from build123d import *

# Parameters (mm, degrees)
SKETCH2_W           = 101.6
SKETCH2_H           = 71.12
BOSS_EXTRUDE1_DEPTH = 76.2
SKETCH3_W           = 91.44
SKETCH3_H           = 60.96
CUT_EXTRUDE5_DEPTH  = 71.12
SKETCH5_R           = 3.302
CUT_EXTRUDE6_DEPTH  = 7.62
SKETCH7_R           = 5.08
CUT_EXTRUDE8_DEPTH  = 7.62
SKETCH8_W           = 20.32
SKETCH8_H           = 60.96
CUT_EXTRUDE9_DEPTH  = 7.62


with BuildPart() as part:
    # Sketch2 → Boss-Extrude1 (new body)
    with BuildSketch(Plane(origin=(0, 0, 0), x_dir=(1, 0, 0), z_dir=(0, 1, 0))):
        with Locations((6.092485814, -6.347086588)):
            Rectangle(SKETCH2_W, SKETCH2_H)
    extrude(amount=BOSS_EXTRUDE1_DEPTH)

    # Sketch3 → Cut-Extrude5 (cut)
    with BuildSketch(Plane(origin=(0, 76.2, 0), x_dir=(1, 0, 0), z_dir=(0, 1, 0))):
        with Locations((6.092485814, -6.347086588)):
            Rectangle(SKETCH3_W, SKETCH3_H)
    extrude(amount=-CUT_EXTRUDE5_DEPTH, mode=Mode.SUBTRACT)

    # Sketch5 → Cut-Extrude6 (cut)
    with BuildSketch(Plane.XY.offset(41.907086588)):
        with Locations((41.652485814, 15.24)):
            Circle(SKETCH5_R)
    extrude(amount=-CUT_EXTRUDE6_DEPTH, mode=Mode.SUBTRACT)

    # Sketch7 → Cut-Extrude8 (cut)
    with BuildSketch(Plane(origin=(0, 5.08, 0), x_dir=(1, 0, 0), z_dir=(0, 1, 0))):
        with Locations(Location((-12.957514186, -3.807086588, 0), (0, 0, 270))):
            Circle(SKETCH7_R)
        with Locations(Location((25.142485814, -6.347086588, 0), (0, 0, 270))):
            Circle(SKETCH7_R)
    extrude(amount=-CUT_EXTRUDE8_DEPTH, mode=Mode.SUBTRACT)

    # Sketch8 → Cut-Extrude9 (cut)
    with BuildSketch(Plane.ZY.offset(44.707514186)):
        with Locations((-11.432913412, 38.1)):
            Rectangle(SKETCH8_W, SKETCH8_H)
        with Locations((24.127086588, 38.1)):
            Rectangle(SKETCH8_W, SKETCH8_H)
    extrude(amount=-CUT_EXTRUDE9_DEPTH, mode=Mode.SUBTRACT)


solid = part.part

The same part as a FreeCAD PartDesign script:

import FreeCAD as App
import Part
import Sketcher
from FreeCAD import Vector
Q = App.Units.Quantity


def add_polygon(sketch, points):
    """Adds a closed chain of lines whose ends are joined by coincident constraints."""
    first, n = sketch.GeometryCount, len(points)
    for a, b in zip(points, points[1:] + points[:1]):
        sketch.addGeometry(Part.LineSegment(App.Vector(*a, 0), App.Vector(*b, 0)), False)
    for i in range(n):
        sketch.addConstraint(Sketcher.Constraint("Coincident", first + i, 2, first + (i + 1) % n, 1))

doc = App.newDocument("Part")
body = doc.addObject("PartDesign::Body", "Body")

# Sketch on XZ plane
sketch1 = body.newObject("Sketcher::SketchObject", "Sketch")
sketch1.AttachmentSupport = (doc.getObject("XZ_Plane"), [""])
sketch1.MapMode = "FlatFace"
add_polygon(sketch1, [(-44.707514, -29.212913), (-44.707514, 41.907087), (56.892486, 41.907087), (56.892486, -29.212913)])  # lines 0-3
sketch1.addConstraint([
    Sketcher.Constraint("Vertical", 0),
    Sketcher.Constraint("Horizontal", 1),
    Sketcher.Constraint("Vertical", 2),
    Sketcher.Constraint("Horizontal", 3),
    Sketcher.Constraint("DistanceX", 1, 1, 1, 2, Q("4 in")),
    Sketcher.Constraint("DistanceY", 0, 1, 0, 2, Q("2.8 in")),
    Sketcher.Constraint("DistanceX", 0, 2, -1, 1, Q("44.707514 mm")),
    Sketcher.Constraint("DistanceY", -1, 1, 0, 2, Q("41.907087 mm")),
])
pad1 = body.newObject("PartDesign::Pad", "Pad")
pad1.Profile = sketch1
pad1.Length = Q("3 in")
pad1.Reversed = True

# Sketch on XZ plane
sketch2 = body.newObject("Sketcher::SketchObject", "Sketch001")
sketch2.AttachmentSupport = (doc.getObject("XZ_Plane"), [""])
sketch2.MapMode = "FlatFace"
sketch2.AttachmentOffset = App.Placement(Vector(0, 0, -3 * 25.4), App.Rotation())
add_polygon(sketch2, [(-39.627514, -24.132913), (-39.627514, 36.827087), (51.812486, 36.827087), (51.812486, -24.132913)])  # lines 0-3
sketch2.addConstraint([
    Sketcher.Constraint("Vertical", 0),
    Sketcher.Constraint("Horizontal", 1),
    Sketcher.Constraint("Vertical", 2),
    Sketcher.Constraint("Horizontal", 3),
    Sketcher.Constraint("DistanceX", 1, 1, 1, 2, Q("3.6 in")),
    Sketcher.Constraint("DistanceY", 0, 1, 0, 2, Q("2.4 in")),
    Sketcher.Constraint("DistanceX", 0, 2, -1, 1, Q("39.627514 mm")),
    Sketcher.Constraint("DistanceY", -1, 1, 0, 2, Q("36.827087 mm")),
])
pocket1 = body.newObject("PartDesign::Pocket", "Pocket")
pocket1.Profile = sketch2
pocket1.Length = Q("2.8 in")
pocket1.Reversed = True

# Sketch on XY plane
sketch3 = body.newObject("Sketcher::SketchObject", "Sketch002")
sketch3.AttachmentSupport = (doc.getObject("XY_Plane"), [""])
sketch3.MapMode = "FlatFace"
sketch3.AttachmentOffset = App.Placement(Vector(0, 0, 41.907087), App.Rotation())
sketch3.addGeometry(Part.Circle(Vector(41.652486, 15.24, 0), Vector(0, 0, 1), 3.302), False)
sketch3.addConstraint([
    Sketcher.Constraint("Diameter", 0, Q("0.26 in")),
    Sketcher.Constraint("DistanceY", -1, 1, 0, 3, Q("0.6 in")),
    Sketcher.Constraint("DistanceX", -1, 1, 0, 3, Q("41.652486 mm")),
])
pocket2 = body.newObject("PartDesign::Pocket", "Pocket001")
pocket2.Profile = sketch3
pocket2.Length = Q("0.3 in")

# Sketch on XZ plane
sketch4 = body.newObject("Sketcher::SketchObject", "Sketch003")
sketch4.AttachmentSupport = (doc.getObject("XZ_Plane"), [""])
sketch4.MapMode = "FlatFace"
sketch4.AttachmentOffset = App.Placement(Vector(0, 0, -0.2 * 25.4), App.Rotation())
sketch4.addGeometry([
    Part.Circle(Vector(-12.957514, 3.807087, 0), Vector(0, 0, 1), 5.08),
    Part.Circle(Vector(25.142486, 6.347087, 0), Vector(0, 0, 1), 5.08),
], False)
sketch4.addConstraint([
    Sketcher.Constraint("Equal", 0, 1),
    Sketcher.Constraint("Diameter", 0, Q("0.4 in")),
    Sketcher.Constraint("DistanceX", 0, 3, 1, 3, Q("1.5 in")),
    Sketcher.Constraint("DistanceY", 0, 3, 1, 3, Q("0.1 in")),
    Sketcher.Constraint("DistanceX", 0, 3, -1, 1, Q("12.957514 mm")),
    Sketcher.Constraint("DistanceY", -1, 1, 0, 3, Q("3.807087 mm")),
])
pocket3 = body.newObject("PartDesign::Pocket", "Pocket002")
pocket3.Profile = sketch4
pocket3.Length = Q("0.3 in")
pocket3.Reversed = True

# Sketch on YZ plane
sketch5 = body.newObject("Sketcher::SketchObject", "Sketch004")
sketch5.AttachmentSupport = (doc.getObject("YZ_Plane"), [""])
sketch5.MapMode = "FlatFace"
sketch5.AttachmentOffset = App.Placement(Vector(0, 0, -44.707514), App.Rotation())
add_polygon(sketch5, [(68.58, -21.592913), (7.62, -21.592913), (7.62, -1.272913), (68.58, -1.272913)])  # lines 0-3
add_polygon(sketch5, [(68.58, 13.967087), (7.62, 13.967087), (7.62, 34.287087), (68.58, 34.287087)])  # lines 4-7
sketch5.addConstraint([
    Sketcher.Constraint("Horizontal", 0),
    Sketcher.Constraint("Vertical", 1),
    Sketcher.Constraint("Horizontal", 2),
    Sketcher.Constraint("Vertical", 3),
    Sketcher.Constraint("Horizontal", 4),
    Sketcher.Constraint("Vertical", 5),
    Sketcher.Constraint("Horizontal", 6),
    Sketcher.Constraint("Vertical", 7),
    Sketcher.Constraint("Vertical", 1, 2, 4, 2),
    Sketcher.Constraint("Vertical", 3, 2, 6, 2),
    Sketcher.Constraint("Equal", 3, 5),
    Sketcher.Constraint("DistanceX", 0, 2, 0, 1, Q("2.4 in")),
    Sketcher.Constraint("DistanceY", 1, 1, 1, 2, Q("0.8 in")),
    Sketcher.Constraint("DistanceX", -1, 1, 0, 2, Q("0.3 in")),
    Sketcher.Constraint("DistanceY", 1, 2, 4, 2, Q("0.6 in")),
    Sketcher.Constraint("DistanceY", 0, 2, -1, 1, Q("21.592913 mm")),
])
pocket4 = body.newObject("PartDesign::Pocket", "Pocket003")
pocket4.Profile = sketch5
pocket4.Length = Q("0.3 in")
pocket4.Reversed = True

doc.recompute()
